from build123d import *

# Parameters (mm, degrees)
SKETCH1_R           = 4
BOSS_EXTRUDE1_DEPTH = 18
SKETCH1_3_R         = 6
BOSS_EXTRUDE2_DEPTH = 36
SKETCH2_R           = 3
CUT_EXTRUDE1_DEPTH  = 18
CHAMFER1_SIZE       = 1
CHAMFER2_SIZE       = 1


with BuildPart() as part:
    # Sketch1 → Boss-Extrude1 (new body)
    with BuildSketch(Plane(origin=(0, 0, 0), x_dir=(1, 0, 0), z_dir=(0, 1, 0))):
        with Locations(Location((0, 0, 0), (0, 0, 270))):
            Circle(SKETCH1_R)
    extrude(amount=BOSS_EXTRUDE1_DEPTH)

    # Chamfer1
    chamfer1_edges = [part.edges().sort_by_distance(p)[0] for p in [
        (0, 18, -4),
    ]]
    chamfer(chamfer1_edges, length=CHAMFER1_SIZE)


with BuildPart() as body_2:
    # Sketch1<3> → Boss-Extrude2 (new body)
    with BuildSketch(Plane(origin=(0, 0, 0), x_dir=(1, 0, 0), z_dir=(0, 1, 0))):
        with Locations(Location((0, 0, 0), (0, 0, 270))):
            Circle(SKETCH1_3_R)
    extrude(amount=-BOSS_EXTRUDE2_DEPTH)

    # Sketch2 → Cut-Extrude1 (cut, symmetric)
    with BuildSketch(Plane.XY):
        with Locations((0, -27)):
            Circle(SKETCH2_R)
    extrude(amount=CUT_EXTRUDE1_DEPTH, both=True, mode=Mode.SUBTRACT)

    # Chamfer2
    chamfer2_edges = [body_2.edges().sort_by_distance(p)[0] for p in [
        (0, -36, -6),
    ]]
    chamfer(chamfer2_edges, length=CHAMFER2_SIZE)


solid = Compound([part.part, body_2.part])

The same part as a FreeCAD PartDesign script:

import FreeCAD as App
import Part
import Sketcher
from FreeCAD import Vector


def edges_at(feature, points):
    """Names of the edges that pass closest to the given points."""
    edges = feature.Shape.Edges
    near = lambda p: min(range(len(edges)), key=lambda i: edges[i].distToShape(Part.Vertex(*p))[0])
    return sorted({f"Edge{near(p) + 1}" for p in points})

doc = App.newDocument("Part")
body = doc.addObject("PartDesign::Body", "Body")

sketch1 = body.newObject("Sketcher::SketchObject", "Sketch")
sketch1.AttachmentSupport = (doc.getObject("XZ_Plane"), [""])
sketch1.MapMode = "FlatFace"
sketch1.addGeometry(Part.Circle(Vector(0, 0, 0), Vector(0, 0, 1), 4), False)
sketch1.addConstraint([
    Sketcher.Constraint("Coincident", 0, 3, -1, 1),
    Sketcher.Constraint("Diameter", 0, 8.0),
])
pad1 = body.newObject("PartDesign::Pad", "Pad")
pad1.Profile = sketch1
pad1.Length = 18
pad1.Reversed = True
doc.recompute()

chamfer = body.newObject("PartDesign::Chamfer", "Chamfer")
chamfer.Base = (pad1, edges_at(pad1, [(0, 18, -4)]))
chamfer.Size = 1
body2 = doc.addObject("PartDesign::Body", "Body001")

sketch2 = body2.newObject("Sketcher::SketchObject", "Sketch001")
sketch2.AttachmentSupport = (doc.getObject("XZ_Plane001"), [""])
sketch2.MapMode = "FlatFace"
sketch2.addGeometry(Part.Circle(Vector(0, 0, 0), Vector(0, 0, 1), 6), False)
sketch2.addConstraint([
    Sketcher.Constraint("Coincident", 0, 3, -1, 1),
    Sketcher.Constraint("Diameter", 0, 12.0),
])
pad2 = body2.newObject("PartDesign::Pad", "Pad001")
pad2.Profile = sketch2
pad2.Length = 36

sketch3 = body2.newObject("Sketcher::SketchObject", "Sketch002")
sketch3.AttachmentSupport = (doc.getObject("XY_Plane001"), [""])
sketch3.MapMode = "FlatFace"
sketch3.addGeometry(Part.Circle(Vector(0, -27, 0), Vector(0, 0, 1), 3), False)
sketch3.addConstraint([
    Sketcher.Constraint("PointOnObject", 0, 3, -2),
    Sketcher.Constraint("Diameter", 0, 6.0),
    Sketcher.Constraint("DistanceY", 0, 3, -1, 1, 27.0),
])
pocket1 = body2.newObject("PartDesign::Pocket", "Pocket")
pocket1.Profile = sketch3
pocket1.Length = 36
pocket1.Midplane = True
doc.recompute()

chamfer2 = body2.newObject("PartDesign::Chamfer", "Chamfer001")
chamfer2.Base = (pocket1, edges_at(pocket1, [(0, -36, -6)]))
chamfer2.Size = 1

doc.recompute()
